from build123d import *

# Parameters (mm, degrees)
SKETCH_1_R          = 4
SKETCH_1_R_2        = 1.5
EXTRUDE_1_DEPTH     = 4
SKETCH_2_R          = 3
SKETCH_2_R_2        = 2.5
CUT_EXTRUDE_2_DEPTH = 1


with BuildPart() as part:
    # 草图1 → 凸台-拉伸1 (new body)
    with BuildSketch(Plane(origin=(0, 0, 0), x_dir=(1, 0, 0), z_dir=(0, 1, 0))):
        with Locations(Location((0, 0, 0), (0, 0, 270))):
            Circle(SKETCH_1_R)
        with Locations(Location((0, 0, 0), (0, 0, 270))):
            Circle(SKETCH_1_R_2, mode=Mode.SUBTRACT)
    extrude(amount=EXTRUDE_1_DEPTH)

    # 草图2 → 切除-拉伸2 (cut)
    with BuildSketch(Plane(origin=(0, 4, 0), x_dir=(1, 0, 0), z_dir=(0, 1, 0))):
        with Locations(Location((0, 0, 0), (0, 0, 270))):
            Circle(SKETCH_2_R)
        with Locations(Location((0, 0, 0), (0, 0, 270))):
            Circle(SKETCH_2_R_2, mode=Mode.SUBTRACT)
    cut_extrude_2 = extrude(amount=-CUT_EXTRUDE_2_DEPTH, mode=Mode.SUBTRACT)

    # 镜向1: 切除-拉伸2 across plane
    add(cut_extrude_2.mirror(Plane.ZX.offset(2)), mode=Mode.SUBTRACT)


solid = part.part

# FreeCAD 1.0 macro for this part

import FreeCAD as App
import Part
import Sketcher
Q = App.Units.Quantity

doc = App.newDocument("Part")
body = doc.addObject("PartDesign::Body", "Body")

sketch1 = doc.addObject("Sketcher::SketchObject", "Sketch")
body.addObject(sketch1)
sketch1.AttachmentSupport = (doc.XZ_Plane, [""])
sketch1.MapMode = "FlatFace"
sketch1.addGeometry(Part.Circle(App.Vector(0, 0, 0), App.Vector(0, 0, 1), 4), False)
sketch1.addGeometry(Part.Circle(App.Vector(0, 0, 0), App.Vector(0, 0, 1), 1.5), False)
sketch1.addConstraint(Sketcher.Constraint("Coincident", 0, 3, -1, 1))
sketch1.addConstraint(Sketcher.Constraint("Coincident", 1, 3, -1, 1))
sketch1.addConstraint(Sketcher.Constraint("Diameter", 0, Q("8 mm")))
sketch1.addConstraint(Sketcher.Constraint("Diameter", 1, Q("3 mm")))
pad1 = doc.addObject("PartDesign::Pad", "Pad")
body.addObject(pad1)
pad1.Profile = sketch1
pad1.Length = 4
pad1.Reversed = True

sketch2 = doc.addObject("Sketcher::SketchObject", "Sketch001")
body.addObject(sketch2)
sketch2.AttachmentSupport = (doc.XZ_Plane, [""])
sketch2.MapMode = "FlatFace"
sketch2.AttachmentOffset = App.Placement(App.Vector(0, 0, -4), App.Rotation())
sketch2.addGeometry(Part.Circle(App.Vector(0, 0, 0), App.Vector(0, 0, 1), 3), False)
sketch2.addGeometry(Part.Circle(App.Vector(0, 0, 0), App.Vector(0, 0, 1), 2.5), False)
sketch2.addConstraint(Sketcher.Constraint("Coincident", 0, 3, -1, 1))
sketch2.addConstraint(Sketcher.Constraint("Coincident", 1, 3, -1, 1))
sketch2.addConstraint(Sketcher.Constraint("Diameter", 0, Q("6 mm")))
sketch2.addConstraint(Sketcher.Constraint("Diameter", 1, Q("5 mm")))
pocket1 = doc.addObject("PartDesign::Pocket", "Pocket")
body.addObject(pocket1)
pocket1.Profile = sketch2
pocket1.Length = 1
pocket1.Reversed = True
doc.recompute()

datumplane = doc.addObject("PartDesign::Plane", "DatumPlane")
body.addObject(datumplane)
datumplane.AttachmentSupport = (doc.XZ_Plane, [""])
datumplane.MapMode = "FlatFace"
datumplane.AttachmentOffset = App.Placement(App.Vector(0, 0, -2), App.Rotation())
mirrored = doc.addObject("PartDesign::Mirrored", "Mirrored")
body.addObject(mirrored)
mirrored.Originals = [pocket1]
mirrored.MirrorPlane = (datumplane, [""])
body.Tip = mirrored

doc.recompute()
